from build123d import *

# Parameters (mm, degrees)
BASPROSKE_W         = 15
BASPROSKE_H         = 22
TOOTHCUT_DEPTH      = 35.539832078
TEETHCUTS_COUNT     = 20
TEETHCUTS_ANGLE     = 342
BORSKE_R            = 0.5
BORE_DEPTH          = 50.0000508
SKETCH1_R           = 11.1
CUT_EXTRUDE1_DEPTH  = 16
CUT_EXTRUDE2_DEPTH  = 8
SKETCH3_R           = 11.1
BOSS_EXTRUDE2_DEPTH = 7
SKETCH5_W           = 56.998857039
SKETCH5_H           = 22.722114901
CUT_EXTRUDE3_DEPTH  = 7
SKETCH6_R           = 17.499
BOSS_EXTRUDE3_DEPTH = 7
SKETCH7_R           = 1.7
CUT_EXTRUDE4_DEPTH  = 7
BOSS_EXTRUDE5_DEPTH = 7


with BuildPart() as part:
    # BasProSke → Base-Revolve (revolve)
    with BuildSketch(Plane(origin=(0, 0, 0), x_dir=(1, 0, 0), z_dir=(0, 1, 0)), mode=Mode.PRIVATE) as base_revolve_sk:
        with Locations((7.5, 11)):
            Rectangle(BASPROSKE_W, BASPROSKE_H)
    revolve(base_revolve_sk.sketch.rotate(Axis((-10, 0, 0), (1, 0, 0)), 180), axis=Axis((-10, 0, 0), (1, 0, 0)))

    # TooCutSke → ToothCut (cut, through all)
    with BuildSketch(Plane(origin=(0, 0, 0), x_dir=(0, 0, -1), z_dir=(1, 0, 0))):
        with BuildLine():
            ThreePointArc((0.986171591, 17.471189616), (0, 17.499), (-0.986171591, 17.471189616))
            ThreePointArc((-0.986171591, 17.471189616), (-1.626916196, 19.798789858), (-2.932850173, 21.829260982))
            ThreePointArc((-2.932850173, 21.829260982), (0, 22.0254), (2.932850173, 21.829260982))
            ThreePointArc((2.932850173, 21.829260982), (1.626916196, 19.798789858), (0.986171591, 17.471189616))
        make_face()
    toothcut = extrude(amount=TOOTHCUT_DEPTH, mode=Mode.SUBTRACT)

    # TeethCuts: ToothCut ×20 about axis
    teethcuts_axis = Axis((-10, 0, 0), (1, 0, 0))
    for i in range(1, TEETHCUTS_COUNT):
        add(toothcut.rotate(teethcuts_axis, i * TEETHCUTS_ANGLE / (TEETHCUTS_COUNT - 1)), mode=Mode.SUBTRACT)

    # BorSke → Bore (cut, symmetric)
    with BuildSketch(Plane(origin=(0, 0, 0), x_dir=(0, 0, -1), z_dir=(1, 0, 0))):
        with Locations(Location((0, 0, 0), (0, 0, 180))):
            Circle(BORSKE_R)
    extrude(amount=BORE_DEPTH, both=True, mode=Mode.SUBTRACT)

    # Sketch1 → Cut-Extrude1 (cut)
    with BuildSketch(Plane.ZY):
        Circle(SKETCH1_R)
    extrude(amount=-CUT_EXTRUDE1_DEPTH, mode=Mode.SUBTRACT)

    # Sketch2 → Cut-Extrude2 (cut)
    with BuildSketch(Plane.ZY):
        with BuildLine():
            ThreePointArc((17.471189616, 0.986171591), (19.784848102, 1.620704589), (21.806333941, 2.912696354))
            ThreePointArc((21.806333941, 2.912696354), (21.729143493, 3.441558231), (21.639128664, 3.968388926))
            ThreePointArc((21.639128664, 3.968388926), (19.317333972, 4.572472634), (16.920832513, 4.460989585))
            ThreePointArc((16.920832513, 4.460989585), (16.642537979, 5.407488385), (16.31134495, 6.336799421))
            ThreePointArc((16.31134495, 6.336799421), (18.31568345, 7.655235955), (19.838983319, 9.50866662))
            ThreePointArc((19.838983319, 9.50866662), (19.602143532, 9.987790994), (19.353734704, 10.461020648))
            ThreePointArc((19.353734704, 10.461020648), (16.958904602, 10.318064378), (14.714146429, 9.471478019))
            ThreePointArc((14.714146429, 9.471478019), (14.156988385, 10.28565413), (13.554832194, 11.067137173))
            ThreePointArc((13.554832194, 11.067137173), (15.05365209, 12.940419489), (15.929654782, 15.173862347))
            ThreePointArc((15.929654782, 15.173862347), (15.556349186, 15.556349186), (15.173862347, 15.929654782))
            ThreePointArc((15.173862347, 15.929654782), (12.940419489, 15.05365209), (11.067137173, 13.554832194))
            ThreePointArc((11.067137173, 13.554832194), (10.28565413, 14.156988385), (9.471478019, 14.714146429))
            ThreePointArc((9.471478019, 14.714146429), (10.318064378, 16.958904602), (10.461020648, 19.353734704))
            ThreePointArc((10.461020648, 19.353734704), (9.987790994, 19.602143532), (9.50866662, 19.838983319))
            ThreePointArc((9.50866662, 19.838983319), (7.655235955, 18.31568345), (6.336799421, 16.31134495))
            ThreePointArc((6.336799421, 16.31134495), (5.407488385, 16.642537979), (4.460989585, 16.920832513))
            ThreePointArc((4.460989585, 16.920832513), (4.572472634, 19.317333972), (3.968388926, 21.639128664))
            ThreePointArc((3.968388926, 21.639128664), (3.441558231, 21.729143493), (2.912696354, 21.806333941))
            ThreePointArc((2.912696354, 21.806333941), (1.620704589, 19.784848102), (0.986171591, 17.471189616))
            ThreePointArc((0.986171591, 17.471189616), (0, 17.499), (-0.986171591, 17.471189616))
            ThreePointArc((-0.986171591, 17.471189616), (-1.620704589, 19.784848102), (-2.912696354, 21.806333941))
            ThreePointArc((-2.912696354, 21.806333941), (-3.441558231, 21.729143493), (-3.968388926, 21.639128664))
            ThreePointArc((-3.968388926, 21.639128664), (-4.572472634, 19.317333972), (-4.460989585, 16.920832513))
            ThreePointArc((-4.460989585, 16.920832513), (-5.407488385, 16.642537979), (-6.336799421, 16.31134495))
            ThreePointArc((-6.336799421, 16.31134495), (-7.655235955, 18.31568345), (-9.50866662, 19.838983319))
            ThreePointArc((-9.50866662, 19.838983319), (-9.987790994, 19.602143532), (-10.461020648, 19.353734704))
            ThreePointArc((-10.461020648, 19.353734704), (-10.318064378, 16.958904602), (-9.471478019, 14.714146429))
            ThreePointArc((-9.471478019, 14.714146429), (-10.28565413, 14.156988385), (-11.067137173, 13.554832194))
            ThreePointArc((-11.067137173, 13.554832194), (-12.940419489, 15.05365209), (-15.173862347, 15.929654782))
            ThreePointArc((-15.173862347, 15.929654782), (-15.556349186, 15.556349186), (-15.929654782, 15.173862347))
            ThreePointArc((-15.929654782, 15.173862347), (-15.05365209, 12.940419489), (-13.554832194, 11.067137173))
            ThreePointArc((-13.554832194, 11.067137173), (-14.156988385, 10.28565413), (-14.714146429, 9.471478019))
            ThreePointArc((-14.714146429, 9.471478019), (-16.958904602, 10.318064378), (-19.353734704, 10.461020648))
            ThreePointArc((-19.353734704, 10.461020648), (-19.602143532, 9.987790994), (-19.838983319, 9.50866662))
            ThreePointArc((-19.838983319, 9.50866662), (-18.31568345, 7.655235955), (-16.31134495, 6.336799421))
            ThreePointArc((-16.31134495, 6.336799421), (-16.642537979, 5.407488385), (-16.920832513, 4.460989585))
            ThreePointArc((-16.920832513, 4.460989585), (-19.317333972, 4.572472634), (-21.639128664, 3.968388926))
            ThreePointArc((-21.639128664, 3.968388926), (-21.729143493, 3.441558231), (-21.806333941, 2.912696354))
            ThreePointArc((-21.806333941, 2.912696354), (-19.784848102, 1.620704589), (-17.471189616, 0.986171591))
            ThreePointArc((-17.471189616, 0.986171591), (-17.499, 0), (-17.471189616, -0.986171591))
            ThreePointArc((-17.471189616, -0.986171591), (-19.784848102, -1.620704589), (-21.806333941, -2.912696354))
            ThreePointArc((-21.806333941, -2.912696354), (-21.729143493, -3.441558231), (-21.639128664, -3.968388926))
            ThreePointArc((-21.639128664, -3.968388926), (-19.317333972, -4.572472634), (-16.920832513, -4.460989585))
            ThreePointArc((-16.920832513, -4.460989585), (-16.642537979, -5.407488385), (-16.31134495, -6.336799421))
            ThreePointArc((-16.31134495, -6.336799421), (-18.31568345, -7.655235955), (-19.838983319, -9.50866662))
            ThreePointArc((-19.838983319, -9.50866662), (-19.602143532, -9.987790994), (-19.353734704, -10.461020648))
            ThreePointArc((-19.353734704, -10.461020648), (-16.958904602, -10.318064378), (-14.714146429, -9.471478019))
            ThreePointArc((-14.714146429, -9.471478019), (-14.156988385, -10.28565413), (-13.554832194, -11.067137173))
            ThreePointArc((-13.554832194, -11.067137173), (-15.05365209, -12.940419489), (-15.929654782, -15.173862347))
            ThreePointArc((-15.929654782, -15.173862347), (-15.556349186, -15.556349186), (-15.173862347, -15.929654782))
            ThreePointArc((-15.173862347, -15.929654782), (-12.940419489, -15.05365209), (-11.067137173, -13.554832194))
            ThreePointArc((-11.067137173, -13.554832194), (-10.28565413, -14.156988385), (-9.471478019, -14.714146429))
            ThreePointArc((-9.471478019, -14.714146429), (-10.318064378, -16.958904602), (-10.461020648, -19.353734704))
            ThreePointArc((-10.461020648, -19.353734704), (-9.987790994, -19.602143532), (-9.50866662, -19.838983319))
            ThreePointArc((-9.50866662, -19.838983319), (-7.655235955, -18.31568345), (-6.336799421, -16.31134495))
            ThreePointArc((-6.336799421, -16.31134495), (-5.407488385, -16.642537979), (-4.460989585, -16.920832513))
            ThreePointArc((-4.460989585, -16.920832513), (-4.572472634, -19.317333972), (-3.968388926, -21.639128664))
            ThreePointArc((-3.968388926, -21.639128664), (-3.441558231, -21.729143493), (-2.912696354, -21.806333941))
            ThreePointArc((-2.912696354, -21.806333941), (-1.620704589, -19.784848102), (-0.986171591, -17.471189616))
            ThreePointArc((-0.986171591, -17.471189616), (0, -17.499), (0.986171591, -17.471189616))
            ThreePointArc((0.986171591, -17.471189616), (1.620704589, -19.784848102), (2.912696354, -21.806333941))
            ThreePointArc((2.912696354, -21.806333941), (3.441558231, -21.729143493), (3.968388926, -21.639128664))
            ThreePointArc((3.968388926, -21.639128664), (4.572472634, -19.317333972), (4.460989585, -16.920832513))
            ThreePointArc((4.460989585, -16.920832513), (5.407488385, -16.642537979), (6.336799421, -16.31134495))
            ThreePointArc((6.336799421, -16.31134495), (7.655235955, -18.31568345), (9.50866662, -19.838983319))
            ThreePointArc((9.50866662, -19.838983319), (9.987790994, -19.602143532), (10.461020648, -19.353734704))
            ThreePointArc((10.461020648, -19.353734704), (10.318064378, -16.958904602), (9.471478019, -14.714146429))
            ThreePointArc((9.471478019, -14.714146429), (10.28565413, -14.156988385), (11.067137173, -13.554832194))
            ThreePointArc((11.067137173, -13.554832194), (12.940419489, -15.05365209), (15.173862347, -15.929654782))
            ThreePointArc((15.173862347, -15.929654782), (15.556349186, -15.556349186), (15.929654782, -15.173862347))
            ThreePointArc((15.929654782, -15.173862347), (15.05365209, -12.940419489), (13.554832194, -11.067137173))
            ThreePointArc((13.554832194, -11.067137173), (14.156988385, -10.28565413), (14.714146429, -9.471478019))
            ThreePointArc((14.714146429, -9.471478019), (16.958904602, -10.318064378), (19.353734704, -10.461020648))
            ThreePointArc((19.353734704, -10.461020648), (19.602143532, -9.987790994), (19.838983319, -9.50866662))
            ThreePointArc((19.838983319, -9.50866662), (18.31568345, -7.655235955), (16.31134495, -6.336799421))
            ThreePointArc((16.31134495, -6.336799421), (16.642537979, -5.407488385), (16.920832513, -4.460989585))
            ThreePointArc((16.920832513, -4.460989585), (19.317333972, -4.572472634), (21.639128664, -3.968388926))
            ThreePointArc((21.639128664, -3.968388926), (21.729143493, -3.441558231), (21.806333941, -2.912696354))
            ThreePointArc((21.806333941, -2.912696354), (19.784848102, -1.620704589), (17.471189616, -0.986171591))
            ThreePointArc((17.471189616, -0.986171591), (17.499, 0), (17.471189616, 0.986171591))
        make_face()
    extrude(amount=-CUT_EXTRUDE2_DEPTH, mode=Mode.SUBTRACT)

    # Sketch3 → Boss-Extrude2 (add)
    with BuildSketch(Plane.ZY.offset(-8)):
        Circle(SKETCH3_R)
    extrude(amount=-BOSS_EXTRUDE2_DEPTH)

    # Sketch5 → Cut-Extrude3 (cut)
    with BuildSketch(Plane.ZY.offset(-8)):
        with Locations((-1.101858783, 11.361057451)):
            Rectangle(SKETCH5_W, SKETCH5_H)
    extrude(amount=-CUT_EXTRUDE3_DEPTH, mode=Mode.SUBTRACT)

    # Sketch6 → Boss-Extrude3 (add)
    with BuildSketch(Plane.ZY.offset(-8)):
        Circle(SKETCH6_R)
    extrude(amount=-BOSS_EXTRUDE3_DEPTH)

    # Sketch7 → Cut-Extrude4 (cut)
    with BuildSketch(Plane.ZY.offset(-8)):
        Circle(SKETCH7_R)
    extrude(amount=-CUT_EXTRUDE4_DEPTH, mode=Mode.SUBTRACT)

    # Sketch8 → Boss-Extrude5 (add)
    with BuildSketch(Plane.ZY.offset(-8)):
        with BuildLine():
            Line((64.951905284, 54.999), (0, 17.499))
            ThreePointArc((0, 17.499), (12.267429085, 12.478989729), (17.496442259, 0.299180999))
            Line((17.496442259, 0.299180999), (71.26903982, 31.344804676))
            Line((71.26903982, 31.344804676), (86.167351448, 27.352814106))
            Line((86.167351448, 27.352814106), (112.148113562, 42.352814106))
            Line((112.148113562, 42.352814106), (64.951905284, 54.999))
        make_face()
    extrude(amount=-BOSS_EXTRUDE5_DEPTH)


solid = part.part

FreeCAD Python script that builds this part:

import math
import FreeCAD as App
import Part
import Sketcher
Q = App.Units.Quantity

doc = App.newDocument("Part")
body = doc.addObject("PartDesign::Body", "Body")

# Sketch on XZ plane
sketch1 = body.newObject("Sketcher::SketchObject", "Sketch")
sketch1.AttachmentSupport = (doc.getObject("XZ_Plane"), [""])
sketch1.MapMode = "FlatFace"
sketch1.addGeometry([
    Part.LineSegment(App.Vector(0, -22, 0), App.Vector(0, 0, 0)),
    Part.LineSegment(App.Vector(0, 0, 0), App.Vector(15, 0, 0)),
    Part.LineSegment(App.Vector(15, 0, 0), App.Vector(15, -22, 0)),
    Part.LineSegment(App.Vector(15, -22, 0), App.Vector(0, -22, 0)),
], False)
sketch1.addConstraint([
    Sketcher.Constraint("Coincident", 0, 2, 1, 1),
    Sketcher.Constraint("Coincident", 1, 2, 2, 1),
    Sketcher.Constraint("Coincident", 2, 2, 3, 1),
    Sketcher.Constraint("Coincident", 3, 2, 0, 1),
    Sketcher.Constraint("Vertical", 0),
    Sketcher.Constraint("Horizontal", 1),
    Sketcher.Constraint("Vertical", 2),
    Sketcher.Constraint("Horizontal", 3),
    Sketcher.Constraint("Coincident", 0, 2, -1, 1),
    Sketcher.Constraint("DistanceX", 1, 1, 1, 2, Q("15 mm")),
    Sketcher.Constraint("DistanceY", 0, 1, 0, 2, Q("22 mm")),
])
revolution = body.newObject("PartDesign::Revolution", "Revolution")
revolution.Profile = sketch1
revolution.ReferenceAxis = (sketch1, ["H_Axis"])
revolution.Angle = 360

# Sketch on YZ plane
sketch2 = body.newObject("Sketcher::SketchObject", "Sketch001")
sketch2.AttachmentSupport = (doc.getObject("YZ_Plane"), [""])
sketch2.MapMode = "FlatFace"
sketch2.addGeometry([
    Part.ArcOfCircle(Part.Circle(App.Vector(0, 0, 0), App.Vector(0, 0, 1), 17.5), math.radians(-3.23), math.radians(3.23)),
    Part.ArcOfCircle(Part.Circle(App.Vector(16.5, -8.9, 0), App.Vector(0, 0, 1), 8), math.radians(49), math.radians(83)),
    Part.ArcOfCircle(Part.Circle(App.Vector(0, 0, 0), App.Vector(0, 0, 1), 22), math.radians(-7.65), math.radians(7.65)),
    Part.ArcOfCircle(Part.Circle(App.Vector(16.5, 8.9, 0), App.Vector(0, 0, 1), 8), math.radians(-83), math.radians(-49)),
], False)
sketch2.addConstraint([
    Sketcher.Constraint("Coincident", 0, 1, 1, 2),
    Sketcher.Constraint("Coincident", 1, 1, 2, 1),
    Sketcher.Constraint("Coincident", 2, 2, 3, 2),
    Sketcher.Constraint("Coincident", 3, 1, 0, 2),
    Sketcher.Constraint("Coincident", 0, 3, -1, 1),
    Sketcher.Constraint("Coincident", 2, 3, -1, 1),
    Sketcher.Constraint("Equal", 1, 3),
    Sketcher.Constraint("Symmetric", 1, 3, 3, 3, -1),
    Sketcher.Constraint("Radius", 1, Q("8 mm")),
    Sketcher.Constraint("Radius", 0, Q("17.499 mm")),
    Sketcher.Constraint("Radius", 2, Q("22.0254 mm")),
    Sketcher.Constraint("DistanceY", 1, 1, 2, 2, Q("5.8657 mm")),
    Sketcher.Constraint("DistanceX", -1, 1, 1, 3, Q("16.536031 mm")),
])
pocket1 = body.newObject("PartDesign::Pocket", "Pocket")
pocket1.Profile = sketch2
pocket1.Type = "ThroughAll"
pocket1.Reversed = True
doc.recompute()

polarpattern = body.newObject("PartDesign::PolarPattern", "PolarPattern")
polarpattern.Originals = [pocket1]
polarpattern.Axis = (doc.getObject("X_Axis"), [""])
polarpattern.Angle = 360
polarpattern.Occurrences = 20
body.Tip = polarpattern

# Sketch on YZ plane
sketch3 = body.newObject("Sketcher::SketchObject", "Sketch002")
sketch3.AttachmentSupport = (doc.getObject("YZ_Plane"), [""])
sketch3.MapMode = "FlatFace"
sketch3.addGeometry(Part.Circle(App.Vector(0, 0, 0), App.Vector(0, 0, 1), 0.5), False)
sketch3.addConstraint([
    Sketcher.Constraint("Coincident", 0, 3, -1, 1),
    Sketcher.Constraint("Diameter", 0, Q("1 mm")),
])
pocket2 = body.newObject("PartDesign::Pocket", "Pocket001")
pocket2.Profile = sketch3
pocket2.Length = 100.000102
pocket2.Midplane = True

# Sketch on YZ plane
sketch4 = body.newObject("Sketcher::SketchObject", "Sketch003")
sketch4.AttachmentSupport = (doc.getObject("YZ_Plane"), [""])
sketch4.MapMode = "FlatFace"
sketch4.addGeometry(Part.Circle(App.Vector(0, 0, 0), App.Vector(0, 0, 1), 11), False)
sketch4.addConstraint([
    Sketcher.Constraint("Coincident", 0, 3, -1, 1),
    Sketcher.Constraint("Diameter", 0, Q("22.2 mm")),
])
pocket3 = body.newObject("PartDesign::Pocket", "Pocket002")
pocket3.Profile = sketch4
pocket3.Length = 16
pocket3.Reversed = True

# Sketch on YZ plane
sketch5 = body.newObject("Sketcher::SketchObject", "Sketch004")
sketch5.AttachmentSupport = (doc.getObject("YZ_Plane"), [""])
sketch5.MapMode = "FlatFace"
sketch5.addGeometry([
    Part.ArcOfCircle(Part.Circle(App.Vector(8.9, 16.5, 0), App.Vector(0, 0, 1), 8), math.radians(139), math.radians(173)),  # 0
    Part.ArcOfCircle(Part.Circle(App.Vector(0, 0, 0), App.Vector(0, 0, 1), 22), math.radians(79.61), math.radians(82.39)),  # 1
    Part.ArcOfCircle(Part.Circle(App.Vector(-3.4, 18.5, 0), App.Vector(0, 0, 1), 8), math.radians(-11), math.radians(23)),  # 2
    Part.ArcOfCircle(Part.Circle(App.Vector(0, 0, 0), App.Vector(0, 0, 1), 17.5), math.radians(68.77), math.radians(75.23)),  # 3
    Part.ArcOfCircle(Part.Circle(App.Vector(13.6, 13, 0), App.Vector(0, 0, 1), 8), math.radians(121), math.radians(155)),  # 4
    Part.ArcOfCircle(Part.Circle(App.Vector(0, 0, 0), App.Vector(0, 0, 1), 22), math.radians(61.61), math.radians(64.39)),  # 5
    Part.ArcOfCircle(Part.Circle(App.Vector(2.5, 18.6, 0), App.Vector(0, 0, 1), 8), math.radians(-29), math.radians(5)),  # 6
    Part.ArcOfCircle(Part.Circle(App.Vector(0, 0, 0), App.Vector(0, 0, 1), 17.5), math.radians(50.77), math.radians(57.23)),  # 7
    Part.ArcOfCircle(Part.Circle(App.Vector(16.9, 8.1, 0), App.Vector(0, 0, 1), 8), math.radians(103), math.radians(137)),  # 8
    Part.ArcOfCircle(Part.Circle(App.Vector(0, 0, 0), App.Vector(0, 0, 1), 22), math.radians(43.61), math.radians(46.39)),  # 9
    Part.ArcOfCircle(Part.Circle(App.Vector(8.1, 16.9, 0), App.Vector(0, 0, 1), 8), math.radians(-47), math.radians(-13)),  # 10
    Part.ArcOfCircle(Part.Circle(App.Vector(0, 0, 0), App.Vector(0, 0, 1), 17.5), math.radians(32.77), math.radians(39.23)),  # 11
    Part.ArcOfCircle(Part.Circle(App.Vector(18.6, 2.5, 0), App.Vector(0, 0, 1), 8), math.radians(85), math.radians(119)),  # 12
    Part.ArcOfCircle(Part.Circle(App.Vector(0, 0, 0), App.Vector(0, 0, 1), 22), math.radians(25.61), math.radians(28.39)),  # 13
    Part.ArcOfCircle(Part.Circle(App.Vector(13, 13.6, 0), App.Vector(0, 0, 1), 8), math.radians(-65), math.radians(-31)),  # 14
    Part.ArcOfCircle(Part.Circle(App.Vector(0, 0, 0), App.Vector(0, 0, 1), 17.5), math.radians(14.77), math.radians(21.23)),  # 15
    Part.ArcOfCircle(Part.Circle(App.Vector(18.5, -3.4, 0), App.Vector(0, 0, 1), 8), math.radians(67), math.radians(101)),  # 16
    Part.ArcOfCircle(Part.Circle(App.Vector(0, 0, 0), App.Vector(0, 0, 1), 22), math.radians(7.61), math.radians(10.39)),  # 17
    Part.ArcOfCircle(Part.Circle(App.Vector(16.5, 8.9, 0), App.Vector(0, 0, 1), 8), math.radians(-83), math.radians(-49)),  # 18
    Part.ArcOfCircle(Part.Circle(App.Vector(0, 0, 0), App.Vector(0, 0, 1), 17.5), math.radians(-3.23), math.radians(3.23)),  # 19
    Part.ArcOfCircle(Part.Circle(App.Vector(16.5, -8.9, 0), App.Vector(0, 0, 1), 8), math.radians(49), math.radians(83)),  # 20
    Part.ArcOfCircle(Part.Circle(App.Vector(0, 0, 0), App.Vector(0, 0, 1), 22), math.radians(-10.39), math.radians(-7.61)),  # 21
    Part.ArcOfCircle(Part.Circle(App.Vector(18.5, 3.4, 0), App.Vector(0, 0, 1), 8), math.radians(-101), math.radians(-67)),  # 22
    Part.ArcOfCircle(Part.Circle(App.Vector(0, 0, 0), App.Vector(0, 0, 1), 17.5), math.radians(-21.23), math.radians(-14.77)),  # 23
    Part.ArcOfCircle(Part.Circle(App.Vector(13, -13.6, 0), App.Vector(0, 0, 1), 8), math.radians(31), math.radians(65)),  # 24
    Part.ArcOfCircle(Part.Circle(App.Vector(0, 0, 0), App.Vector(0, 0, 1), 22), math.radians(-28.39), math.radians(-25.61)),  # 25
    Part.ArcOfCircle(Part.Circle(App.Vector(18.6, -2.5, 0), App.Vector(0, 0, 1), 8), math.radians(-119), math.radians(-85)),  # 26
    Part.ArcOfCircle(Part.Circle(App.Vector(0, 0, 0), App.Vector(0, 0, 1), 17.5), math.radians(-39.23), math.radians(-32.77)),  # 27
    Part.ArcOfCircle(Part.Circle(App.Vector(8.1, -16.9, 0), App.Vector(0, 0, 1), 8), math.radians(13), math.radians(47)),  # 28
    Part.ArcOfCircle(Part.Circle(App.Vector(0, 0, 0), App.Vector(0, 0, 1), 22), math.radians(-46.39), math.radians(-43.61)),  # 29
    Part.ArcOfCircle(Part.Circle(App.Vector(16.9, -8.1, 0), App.Vector(0, 0, 1), 8), math.radians(-137), math.radians(-103)),  # 30
    Part.ArcOfCircle(Part.Circle(App.Vector(0, 0, 0), App.Vector(0, 0, 1), 17.5), math.radians(-57.23), math.radians(-50.77)),  # 31
    Part.ArcOfCircle(Part.Circle(App.Vector(2.5, -18.6, 0), App.Vector(0, 0, 1), 8), math.radians(-5), math.radians(29)),  # 32
    Part.ArcOfCircle(Part.Circle(App.Vector(0, 0, 0), App.Vector(0, 0, 1), 22), math.radians(-64.39), math.radians(-61.61)),  # 33
    Part.ArcOfCircle(Part.Circle(App.Vector(13.6, -13, 0), App.Vector(0, 0, 1), 8), math.radians(-155), math.radians(-121)),  # 34
    Part.ArcOfCircle(Part.Circle(App.Vector(0, 0, 0), App.Vector(0, 0, 1), 17.5), math.radians(-75.23), math.radians(-68.77)),  # 35
    Part.ArcOfCircle(Part.Circle(App.Vector(-3.4, -18.5, 0), App.Vector(0, 0, 1), 8), math.radians(-23), math.radians(11)),  # 36
    Part.ArcOfCircle(Part.Circle(App.Vector(0, 0, 0), App.Vector(0, 0, 1), 22), math.radians(-82.39), math.radians(-79.61)),  # 37
    Part.ArcOfCircle(Part.Circle(App.Vector(8.9, -16.5, 0), App.Vector(0, 0, 1), 8), math.radians(-173), math.radians(-139)),  # 38
    Part.ArcOfCircle(Part.Circle(App.Vector(0, 0, 0), App.Vector(0, 0, 1), 17.5), math.radians(-93.23), math.radians(-86.77)),  # 39
    Part.ArcOfCircle(Part.Circle(App.Vector(-8.9, -16.5, 0), App.Vector(0, 0, 1), 8), math.radians(-41), math.radians(-7)),  # 40
    Part.ArcOfCircle(Part.Circle(App.Vector(0, 0, 0), App.Vector(0, 0, 1), 22), math.radians(-100.39), math.radians(-97.61)),  # 41
    Part.ArcOfCircle(Part.Circle(App.Vector(3.4, -18.5, 0), App.Vector(0, 0, 1), 8), math.radians(169), math.radians(203)),  # 42
    Part.ArcOfCircle(Part.Circle(App.Vector(0, 0, 0), App.Vector(0, 0, 1), 17.5), math.radians(-111.23), math.radians(-104.77)),  # 43
    Part.ArcOfCircle(Part.Circle(App.Vector(-13.6, -13, 0), App.Vector(0, 0, 1), 8), math.radians(-59), math.radians(-25)),  # 44
    Part.ArcOfCircle(Part.Circle(App.Vector(0, 0, 0), App.Vector(0, 0, 1), 22), math.radians(-118.39), math.radians(-115.61)),  # 45
    Part.ArcOfCircle(Part.Circle(App.Vector(-2.5, -18.6, 0), App.Vector(0, 0, 1), 8), math.radians(151), math.radians(185)),  # 46
    Part.ArcOfCircle(Part.Circle(App.Vector(0, 0, 0), App.Vector(0, 0, 1), 17.5), math.radians(-129.23), math.radians(-122.77)),  # 47
    Part.ArcOfCircle(Part.Circle(App.Vector(-16.9, -8.1, 0), App.Vector(0, 0, 1), 8), math.radians(-77), math.radians(-43)),  # 48
    Part.ArcOfCircle(Part.Circle(App.Vector(0, 0, 0), App.Vector(0, 0, 1), 22), math.radians(-136.39), math.radians(-133.61)),  # 49
    Part.ArcOfCircle(Part.Circle(App.Vector(-8.1, -16.9, 0), App.Vector(0, 0, 1), 8), math.radians(133), math.radians(167)),  # 50
    Part.ArcOfCircle(Part.Circle(App.Vector(0, 0, 0), App.Vector(0, 0, 1), 17.5), math.radians(-147.23), math.radians(-140.77)),  # 51
    Part.ArcOfCircle(Part.Circle(App.Vector(-18.6, -2.5, 0), App.Vector(0, 0, 1), 8), math.radians(-95), math.radians(-61)),  # 52
    Part.ArcOfCircle(Part.Circle(App.Vector(0, 0, 0), App.Vector(0, 0, 1), 22), math.radians(-154.39), math.radians(-151.61)),  # 53
    Part.ArcOfCircle(Part.Circle(App.Vector(-13, -13.6, 0), App.Vector(0, 0, 1), 8), math.radians(115), math.radians(149)),  # 54
    Part.ArcOfCircle(Part.Circle(App.Vector(0, 0, 0), App.Vector(0, 0, 1), 17.5), math.radians(-165.23), math.radians(-158.77)),  # 55
    Part.ArcOfCircle(Part.Circle(App.Vector(-18.5, 3.4, 0), App.Vector(0, 0, 1), 8), math.radians(-113), math.radians(-79)),  # 56
    Part.ArcOfCircle(Part.Circle(App.Vector(0, 0, 0), App.Vector(0, 0, 1), 22), math.radians(-172.39), math.radians(-169.61)),  # 57
    Part.ArcOfCircle(Part.Circle(App.Vector(-16.5, -8.9, 0), App.Vector(0, 0, 1), 8), math.radians(97), math.radians(131)),  # 58
    Part.ArcOfCircle(Part.Circle(App.Vector(0, 0, 0), App.Vector(0, 0, 1), 17.5), math.radians(176.77), math.radians(183.23)),  # 59
    Part.ArcOfCircle(Part.Circle(App.Vector(-16.5, 8.9, 0), App.Vector(0, 0, 1), 8), math.radians(-131), math.radians(-97)),  # 60
    Part.ArcOfCircle(Part.Circle(App.Vector(0, 0, 0), App.Vector(0, 0, 1), 22), math.radians(169.61), math.radians(172.39)),  # 61
    Part.ArcOfCircle(Part.Circle(App.Vector(-18.5, -3.4, 0), App.Vector(0, 0, 1), 8), math.radians(79), math.radians(113)),  # 62
    Part.ArcOfCircle(Part.Circle(App.Vector(0, 0, 0), App.Vector(0, 0, 1), 17.5), math.radians(158.77), math.radians(165.23)),  # 63
    Part.ArcOfCircle(Part.Circle(App.Vector(-13, 13.6, 0), App.Vector(0, 0, 1), 8), math.radians(-149), math.radians(-115)),  # 64
    Part.ArcOfCircle(Part.Circle(App.Vector(0, 0, 0), App.Vector(0, 0, 1), 22), math.radians(151.61), math.radians(154.39)),  # 65
    Part.ArcOfCircle(Part.Circle(App.Vector(-18.6, 2.5, 0), App.Vector(0, 0, 1), 8), math.radians(61), math.radians(95)),  # 66
    Part.ArcOfCircle(Part.Circle(App.Vector(0, 0, 0), App.Vector(0, 0, 1), 17.5), math.radians(140.77), math.radians(147.23)),  # 67
    Part.ArcOfCircle(Part.Circle(App.Vector(-8.1, 16.9, 0), App.Vector(0, 0, 1), 8), math.radians(-167), math.radians(-133)),  # 68
    Part.ArcOfCircle(Part.Circle(App.Vector(0, 0, 0), App.Vector(0, 0, 1), 22), math.radians(133.61), math.radians(136.39)),  # 69
    Part.ArcOfCircle(Part.Circle(App.Vector(-16.9, 8.1, 0), App.Vector(0, 0, 1), 8), math.radians(43), math.radians(77)),  # 70
    Part.ArcOfCircle(Part.Circle(App.Vector(0, 0, 0), App.Vector(0, 0, 1), 17.5), math.radians(122.77), math.radians(129.23)),  # 71
    Part.ArcOfCircle(Part.Circle(App.Vector(-2.5, 18.6, 0), App.Vector(0, 0, 1), 8), math.radians(175), math.radians(209)),  # 72
    Part.ArcOfCircle(Part.Circle(App.Vector(0, 0, 0), App.Vector(0, 0, 1), 22), math.radians(115.61), math.radians(118.39)),  # 73
    Part.ArcOfCircle(Part.Circle(App.Vector(-13.6, 13, 0), App.Vector(0, 0, 1), 8), math.radians(25), math.radians(59)),  # 74
    Part.ArcOfCircle(Part.Circle(App.Vector(0, 0, 0), App.Vector(0, 0, 1), 17.5), math.radians(104.77), math.radians(111.23)),  # 75
    Part.ArcOfCircle(Part.Circle(App.Vector(3.4, 18.5, 0), App.Vector(0, 0, 1), 8), math.radians(157), math.radians(191)),  # 76
    Part.ArcOfCircle(Part.Circle(App.Vector(0, 0, 0), App.Vector(0, 0, 1), 22), math.radians(97.61), math.radians(100.39)),  # 77
    Part.ArcOfCircle(Part.Circle(App.Vector(-8.9, 16.5, 0), App.Vector(0, 0, 1), 8), math.radians(7), math.radians(41)),  # 78
    Part.ArcOfCircle(Part.Circle(App.Vector(0, 0, 0), App.Vector(0, 0, 1), 17.5), math.radians(86.77), math.radians(93.23)),  # 79
], False)
sketch5.addConstraint([
    Sketcher.Constraint("Coincident", 0, 1, 1, 2),
    Sketcher.Constraint("Coincident", 1, 1, 2, 2),
    Sketcher.Constraint("Coincident", 2, 1, 3, 2),
    Sketcher.Constraint("Coincident", 3, 1, 4, 2),
    Sketcher.Constraint("Coincident", 4, 1, 5, 2),
    Sketcher.Constraint("Coincident", 5, 1, 6, 2),
    Sketcher.Constraint("Coincident", 6, 1, 7, 2),
    Sketcher.Constraint("Coincident", 7, 1, 8, 2),
    Sketcher.Constraint("Coincident", 8, 1, 9, 2),
    Sketcher.Constraint("Coincident", 9, 1, 10, 2),
    Sketcher.Constraint("Coincident", 10, 1, 11, 2),
    Sketcher.Constraint("Coincident", 11, 1, 12, 2),
    Sketcher.Constraint("Coincident", 12, 1, 13, 2),
    Sketcher.Constraint("Coincident", 13, 1, 14, 2),
    Sketcher.Constraint("Coincident", 14, 1, 15, 2),
    Sketcher.Constraint("Coincident", 15, 1, 16, 2),
    Sketcher.Constraint("Coincident", 16, 1, 17, 2),
    Sketcher.Constraint("Coincident", 17, 1, 18, 2),
    Sketcher.Constraint("Coincident", 18, 1, 19, 2),
    Sketcher.Constraint("Coincident", 19, 1, 20, 2),
    Sketcher.Constraint("Coincident", 20, 1, 21, 2),
    Sketcher.Constraint("Coincident", 21, 1, 22, 2),
    Sketcher.Constraint("Coincident", 22, 1, 23, 2),
    Sketcher.Constraint("Coincident", 23, 1, 24, 2),
    Sketcher.Constraint("Coincident", 24, 1, 25, 2),
    Sketcher.Constraint("Coincident", 25, 1, 26, 2),
    Sketcher.Constraint("Coincident", 26, 1, 27, 2),
    Sketcher.Constraint("Coincident", 27, 1, 28, 2),
    Sketcher.Constraint("Coincident", 28, 1, 29, 2),
    Sketcher.Constraint("Coincident", 29, 1, 30, 2),
    Sketcher.Constraint("Coincident", 30, 1, 31, 2),
    Sketcher.Constraint("Coincident", 31, 1, 32, 2),
    Sketcher.Constraint("Coincident", 32, 1, 33, 2),
    Sketcher.Constraint("Coincident", 33, 1, 34, 2),
    Sketcher.Constraint("Coincident", 34, 1, 35, 2),
    Sketcher.Constraint("Coincident", 35, 1, 36, 2),
    Sketcher.Constraint("Coincident", 36, 1, 37, 2),
    Sketcher.Constraint("Coincident", 37, 1, 38, 2),
    Sketcher.Constraint("Coincident", 38, 1, 39, 2),
    Sketcher.Constraint("Coincident", 39, 1, 40, 2),
    Sketcher.Constraint("Coincident", 40, 1, 41, 2),
    Sketcher.Constraint("Coincident", 41, 1, 42, 2),
    Sketcher.Constraint("Coincident", 42, 1, 43, 2),
    Sketcher.Constraint("Coincident", 43, 1, 44, 2),
    Sketcher.Constraint("Coincident", 44, 1, 45, 2),
    Sketcher.Constraint("Coincident", 45, 1, 46, 2),
    Sketcher.Constraint("Coincident", 46, 1, 47, 2),
    Sketcher.Constraint("Coincident", 47, 1, 48, 2),
    Sketcher.Constraint("Coincident", 48, 1, 49, 2),
    Sketcher.Constraint("Coincident", 49, 1, 50, 2),
    Sketcher.Constraint("Coincident", 50, 1, 51, 2),
    Sketcher.Constraint("Coincident", 51, 1, 52, 2),
    Sketcher.Constraint("Coincident", 52, 1, 53, 2),
    Sketcher.Constraint("Coincident", 53, 1, 54, 2),
    Sketcher.Constraint("Coincident", 54, 1, 55, 2),
    Sketcher.Constraint("Coincident", 55, 1, 56, 2),
    Sketcher.Constraint("Coincident", 56, 1, 57, 2),
    Sketcher.Constraint("Coincident", 57, 1, 58, 2),
    Sketcher.Constraint("Coincident", 58, 1, 59, 2),
    Sketcher.Constraint("Coincident", 59, 1, 60, 2),
    Sketcher.Constraint("Coincident", 60, 1, 61, 2),
    Sketcher.Constraint("Coincident", 61, 1, 62, 2),
    Sketcher.Constraint("Coincident", 62, 1, 63, 2),
    Sketcher.Constraint("Coincident", 63, 1, 64, 2),
    Sketcher.Constraint("Coincident", 64, 1, 65, 2),
    Sketcher.Constraint("Coincident", 65, 1, 66, 2),
    Sketcher.Constraint("Coincident", 66, 1, 67, 2),
    Sketcher.Constraint("Coincident", 67, 1, 68, 2),
    Sketcher.Constraint("Coincident", 68, 1, 69, 2),
    Sketcher.Constraint("Coincident", 69, 1, 70, 2),
    Sketcher.Constraint("Coincident", 70, 1, 71, 2),
    Sketcher.Constraint("Coincident", 71, 1, 72, 2),
    Sketcher.Constraint("Coincident", 72, 1, 73, 2),
    Sketcher.Constraint("Coincident", 73, 1, 74, 2),
    Sketcher.Constraint("Coincident", 74, 1, 75, 2),
    Sketcher.Constraint("Coincident", 75, 1, 76, 2),
    Sketcher.Constraint("Coincident", 76, 1, 77, 2),
    Sketcher.Constraint("Coincident", 77, 1, 78, 2),
    Sketcher.Constraint("Coincident", 78, 1, 79, 2),
    Sketcher.Constraint("Coincident", 79, 1, 0, 2),
    Sketcher.Constraint("Coincident", 1, 3, -1, 1),
    Sketcher.Constraint("Coincident", 3, 3, -1, 1),
    Sketcher.Constraint("Coincident", 5, 3, -1, 1),
    Sketcher.Constraint("Coincident", 7, 3, -1, 1),
    Sketcher.Constraint("Coincident", 9, 3, -1, 1),
    Sketcher.Constraint("Coincident", 11, 3, -1, 1),
    Sketcher.Constraint("Coincident", 13, 3, -1, 1),
    Sketcher.Constraint("Coincident", 15, 3, -1, 1),
    Sketcher.Constraint("Coincident", 17, 3, -1, 1),
    Sketcher.Constraint("Coincident", 19, 3, -1, 1),
    Sketcher.Constraint("Coincident", 21, 3, -1, 1),
    Sketcher.Constraint("Coincident", 23, 3, -1, 1),
    Sketcher.Constraint("Coincident", 25, 3, -1, 1),
    Sketcher.Constraint("Coincident", 27, 3, -1, 1),
    Sketcher.Constraint("Coincident", 29, 3, -1, 1),
    Sketcher.Constraint("Coincident", 31, 3, -1, 1),
    Sketcher.Constraint("Coincident", 33, 3, -1, 1),
    Sketcher.Constraint("Coincident", 35, 3, -1, 1),
    Sketcher.Constraint("Coincident", 37, 3, -1, 1),
    Sketcher.Constraint("Coincident", 39, 3, -1, 1),
    Sketcher.Constraint("Coincident", 41, 3, -1, 1),
    Sketcher.Constraint("Coincident", 43, 3, -1, 1),
    Sketcher.Constraint("Coincident", 45, 3, -1, 1),
    Sketcher.Constraint("Coincident", 47, 3, -1, 1),
    Sketcher.Constraint("Coincident", 49, 3, -1, 1),
    Sketcher.Constraint("Coincident", 51, 3, -1, 1),
    Sketcher.Constraint("Coincident", 53, 3, -1, 1),
    Sketcher.Constraint("Coincident", 55, 3, -1, 1),
    Sketcher.Constraint("Coincident", 57, 3, -1, 1),
    Sketcher.Constraint("Coincident", 59, 3, -1, 1),
    Sketcher.Constraint("Coincident", 61, 3, -1, 1),
    Sketcher.Constraint("Coincident", 63, 3, -1, 1),
    Sketcher.Constraint("Coincident", 65, 3, -1, 1),
    Sketcher.Constraint("Coincident", 67, 3, -1, 1),
    Sketcher.Constraint("Coincident", 69, 3, -1, 1),
    Sketcher.Constraint("Coincident", 71, 3, -1, 1),
    Sketcher.Constraint("Coincident", 73, 3, -1, 1),
    Sketcher.Constraint("Coincident", 75, 3, -1, 1),
    Sketcher.Constraint("Coincident", 77, 3, -1, 1),
    Sketcher.Constraint("Coincident", 79, 3, -1, 1),
    Sketcher.Constraint("Equal", 0, 2),
    Sketcher.Constraint("Equal", 2, 4),
    Sketcher.Constraint("Equal", 1, 5),
    Sketcher.Constraint("Equal", 4, 6),
    Sketcher.Constraint("Equal", 3, 7),
    Sketcher.Constraint("Equal", 6, 8),
    Sketcher.Constraint("Equal", 5, 9),
    Sketcher.Constraint("Equal", 8, 10),
    Sketcher.Constraint("Equal", 7, 11),
    Sketcher.Constraint("Equal", 10, 12),
    Sketcher.Constraint("Equal", 9, 13),
    Sketcher.Constraint("Equal", 12, 14),
    Sketcher.Constraint("Equal", 11, 15),
    Sketcher.Constraint("Equal", 14, 16),
    Sketcher.Constraint("Equal", 13, 17),
    Sketcher.Constraint("Equal", 16, 18),
    Sketcher.Constraint("Equal", 15, 19),
    Sketcher.Constraint("Equal", 18, 20),
    Sketcher.Constraint("Equal", 17, 21),
    Sketcher.Constraint("Equal", 20, 22),
    Sketcher.Constraint("Equal", 19, 23),
    Sketcher.Constraint("Equal", 22, 24),
    Sketcher.Constraint("Equal", 21, 25),
    Sketcher.Constraint("Equal", 24, 26),
    Sketcher.Constraint("Equal", 23, 27),
    Sketcher.Constraint("Equal", 26, 28),
    Sketcher.Constraint("Equal", 25, 29),
    Sketcher.Constraint("Equal", 28, 30),
    Sketcher.Constraint("Equal", 27, 31),
    Sketcher.Constraint("Equal", 30, 32),
    Sketcher.Constraint("Equal", 29, 33),
    Sketcher.Constraint("Equal", 32, 34),
    Sketcher.Constraint("Equal", 31, 35),
    Sketcher.Constraint("Equal", 34, 36),
    Sketcher.Constraint("Equal", 33, 37),
    Sketcher.Constraint("Equal", 36, 38),
    Sketcher.Constraint("Equal", 35, 39),
    Sketcher.Constraint("Equal", 38, 40),
    Sketcher.Constraint("Equal", 37, 41),
    Sketcher.Constraint("Equal", 40, 42),
    Sketcher.Constraint("Equal", 39, 43),
    Sketcher.Constraint("Equal", 42, 44),
    Sketcher.Constraint("Equal", 41, 45),
    Sketcher.Constraint("Equal", 44, 46),
    Sketcher.Constraint("Equal", 43, 47),
    Sketcher.Constraint("Equal", 46, 48),
    Sketcher.Constraint("Equal", 45, 49),
    Sketcher.Constraint("Equal", 48, 50),
    Sketcher.Constraint("Equal", 47, 51),
    Sketcher.Constraint("Equal", 50, 52),
    Sketcher.Constraint("Equal", 49, 53),
    Sketcher.Constraint("Equal", 52, 54),
    Sketcher.Constraint("Equal", 51, 55),
    Sketcher.Constraint("Equal", 54, 56),
    Sketcher.Constraint("Equal", 53, 57),
    Sketcher.Constraint("Equal", 56, 58),
    Sketcher.Constraint("Equal", 55, 59),
    Sketcher.Constraint("Equal", 58, 60),
    Sketcher.Constraint("Equal", 57, 61),
    Sketcher.Constraint("Equal", 60, 62),
    Sketcher.Constraint("Equal", 59, 63),
    Sketcher.Constraint("Equal", 62, 64),
    Sketcher.Constraint("Equal", 61, 65),
    Sketcher.Constraint("Equal", 64, 66),
    Sketcher.Constraint("Equal", 63, 67),
    Sketcher.Constraint("Equal", 66, 68),
    Sketcher.Constraint("Equal", 65, 69),
    Sketcher.Constraint("Equal", 68, 70),
    Sketcher.Constraint("Equal", 67, 71),
    Sketcher.Constraint("Equal", 70, 72),
    Sketcher.Constraint("Equal", 69, 73),
    Sketcher.Constraint("Equal", 72, 74),
    Sketcher.Constraint("Equal", 71, 75),
    Sketcher.Constraint("Equal", 74, 76),
    Sketcher.Constraint("Equal", 73, 77),
    Sketcher.Constraint("Equal", 76, 78),
    Sketcher.Constraint("Equal", 75, 79),
    Sketcher.Constraint("Symmetric", 0, 3, 40, 3, -1, 1),
    Sketcher.Constraint("Symmetric", 2, 3, 42, 3, -1, 1),
    Sketcher.Constraint("Symmetric", 4, 3, 44, 3, -1, 1),
    Sketcher.Constraint("Symmetric", 6, 3, 46, 3, -1, 1),
    Sketcher.Constraint("Symmetric", 8, 3, 48, 3, -1, 1),
    Sketcher.Constraint("Symmetric", 10, 3, 50, 3, -1, 1),
    Sketcher.Constraint("Symmetric", 12, 3, 52, 3, -1, 1),
    Sketcher.Constraint("Symmetric", 14, 3, 54, 3, -1, 1),
    Sketcher.Constraint("Symmetric", 16, 3, 56, 3, -1, 1),
    Sketcher.Constraint("Symmetric", 18, 3, 58, 3, -1, 1),
    Sketcher.Constraint("Symmetric", 20, 3, 60, 3, -1, 1),
    Sketcher.Constraint("Symmetric", 22, 3, 62, 3, -1, 1),
    Sketcher.Constraint("Symmetric", 24, 3, 64, 3, -1, 1),
    Sketcher.Constraint("Symmetric", 26, 3, 66, 3, -1, 1),
    Sketcher.Constraint("Symmetric", 28, 3, 68, 3, -1, 1),
    Sketcher.Constraint("Symmetric", 30, 3, 70, 3, -1, 1),
    Sketcher.Constraint("Symmetric", 32, 3, 72, 3, -1, 1),
    Sketcher.Constraint("Symmetric", 34, 3, 74, 3, -1, 1),
    Sketcher.Constraint("Symmetric", 36, 3, 76, 3, -1, 1),
    Sketcher.Constraint("Symmetric", 38, 3, 78, 3, -1, 1),
    Sketcher.Constraint("Symmetric", 38, 3, 40, 3, -2),
    Sketcher.Constraint("Symmetric", 36, 3, 42, 3, -2),
    Sketcher.Constraint("Symmetric", 34, 3, 44, 3, -2),
    Sketcher.Constraint("Symmetric", 32, 3, 46, 3, -2),
    Sketcher.Constraint("Symmetric", 30, 3, 48, 3, -2),
    Sketcher.Constraint("Symmetric", 28, 3, 50, 3, -2),
    Sketcher.Constraint("Symmetric", 26, 3, 52, 3, -2),
    Sketcher.Constraint("Symmetric", 24, 3, 54, 3, -2),
    Sketcher.Constraint("Symmetric", 22, 3, 56, 3, -2),
    Sketcher.Constraint("Symmetric", 20, 3, 58, 3, -2),
    Sketcher.Constraint("Radius", 0, Q("8 mm")),
    Sketcher.Constraint("Radius", 1, Q("22 mm")),
    Sketcher.Constraint("Radius", 3, Q("17.499 mm")),
    Sketcher.Constraint("DistanceX", -1, 1, 3, 1, Q("6.336799 mm")),
    Sketcher.Constraint("DistanceY", -1, 1, 14, 1, Q("6.336799 mm")),
    Sketcher.Constraint("DistanceY", -1, 1, 0, 3, Q("16.536031 mm")),
    Sketcher.Constraint("DistanceX", 2, 3, -1, 1, Q("3.384281 mm")),
    Sketcher.Constraint("DistanceY", -1, 1, 2, 3, Q("18.486631 mm")),
    Sketcher.Constraint("DistanceX", -1, 1, 4, 3, Q("13.60411 mm")),
    Sketcher.Constraint("DistanceX", -1, 1, 6, 3, Q("2.49404 mm")),
    Sketcher.Constraint("DistanceY", -1, 1, 6, 3, Q("18.627631 mm")),
    Sketcher.Constraint("DistanceX", -1, 1, 8, 3, Q("16.945229 mm")),
    Sketcher.Constraint("DistanceY", -1, 1, 8, 3, Q("8.128228 mm")),
    Sketcher.Constraint("DistanceX", -1, 1, 10, 3, Q("8.128228 mm")),
    Sketcher.Constraint("DistanceY", -1, 1, 10, 3, Q("16.945229 mm")),
    Sketcher.Constraint("DistanceX", -1, 1, 12, 3, Q("18.627631 mm")),
    Sketcher.Constraint("DistanceY", -1, 1, 12, 3, Q("2.49404 mm")),
    Sketcher.Constraint("DistanceX", -1, 1, 14, 3, Q("12.966768 mm")),
    Sketcher.Constraint("DistanceX", -1, 1, 16, 3, Q("18.486631 mm")),
    Sketcher.Constraint("DistanceY", 16, 3, -1, 1, Q("3.384281 mm")),
    Sketcher.Constraint("DistanceX", -1, 1, 18, 3, Q("16.536031 mm")),
    Sketcher.Constraint("DistanceX", -1, 1, 18, 1, Q("17.47119 mm")),
    Sketcher.Constraint("DistanceX", -1, 1, 38, 1, Q("0.986172 mm")),
])
pocket4 = body.newObject("PartDesign::Pocket", "Pocket003")
pocket4.Profile = sketch5
pocket4.Length = 8
pocket4.Reversed = True

# Sketch on YZ plane
sketch6 = body.newObject("Sketcher::SketchObject", "Sketch005")
sketch6.AttachmentSupport = (doc.getObject("YZ_Plane"), [""])
sketch6.MapMode = "FlatFace"
sketch6.AttachmentOffset = App.Placement(App.Vector(0, 0, 8), App.Rotation())
sketch6.addGeometry(Part.Circle(App.Vector(0, 0, 0), App.Vector(0, 0, 1), 11), False)
sketch6.addConstraint([
    Sketcher.Constraint("Coincident", 0, 3, -1, 1),
    Sketcher.Constraint("Diameter", 0, Q("22.2 mm")),
])
pad1 = body.newObject("PartDesign::Pad", "Pad")
pad1.Profile = sketch6
pad1.Length = 7

# Sketch on YZ plane
sketch7 = body.newObject("Sketcher::SketchObject", "Sketch006")
sketch7.AttachmentSupport = (doc.getObject("YZ_Plane"), [""])
sketch7.MapMode = "FlatFace"
sketch7.AttachmentOffset = App.Placement(App.Vector(0, 0, 8), App.Rotation())
sketch7.addGeometry([
    Part.LineSegment(App.Vector(23, -30, 0), App.Vector(0, -30, 0)),
    Part.LineSegment(App.Vector(0, -30, 0), App.Vector(0, 27, 0)),
    Part.LineSegment(App.Vector(0, 27, 0), App.Vector(23, 27, 0)),
    Part.LineSegment(App.Vector(23, 27, 0), App.Vector(23, -30, 0)),
], False)
sketch7.addConstraint([
    Sketcher.Constraint("Coincident", 0, 2, 1, 1),
    Sketcher.Constraint("Coincident", 1, 2, 2, 1),
    Sketcher.Constraint("Coincident", 2, 2, 3, 1),
    Sketcher.Constraint("Coincident", 3, 2, 0, 1),
    Sketcher.Constraint("Horizontal", 0),
    Sketcher.Constraint("Vertical", 1),
    Sketcher.Constraint("Horizontal", 2),
    Sketcher.Constraint("Vertical", 3),
    Sketcher.Constraint("PointOnObject", 0, 2, -2),
    Sketcher.Constraint("DistanceX", 0, 2, 0, 1, Q("22.722115 mm")),
    Sketcher.Constraint("DistanceY", 1, 1, 1, 2, Q("56.998857 mm")),
    Sketcher.Constraint("DistanceY", -1, 1, 1, 2, Q("27.39757 mm")),
])
pocket5 = body.newObject("PartDesign::Pocket", "Pocket004")
pocket5.Profile = sketch7
pocket5.Length = 7
pocket5.Reversed = True

# Sketch on YZ plane
sketch8 = body.newObject("Sketcher::SketchObject", "Sketch007")
sketch8.AttachmentSupport = (doc.getObject("YZ_Plane"), [""])
sketch8.MapMode = "FlatFace"
sketch8.AttachmentOffset = App.Placement(App.Vector(0, 0, 8), App.Rotation())
sketch8.addGeometry(Part.Circle(App.Vector(0, 0, 0), App.Vector(0, 0, 1), 17), False)
sketch8.addConstraint([
    Sketcher.Constraint("Coincident", 0, 3, -1, 1),
    Sketcher.Constraint("Diameter", 0, Q("34.998 mm")),
])
pad2 = body.newObject("PartDesign::Pad", "Pad001")
pad2.Profile = sketch8
pad2.Length = 7

# Sketch on YZ plane
sketch9 = body.newObject("Sketcher::SketchObject", "Sketch008")
sketch9.AttachmentSupport = (doc.getObject("YZ_Plane"), [""])
sketch9.MapMode = "FlatFace"
sketch9.AttachmentOffset = App.Placement(App.Vector(0, 0, 8), App.Rotation())
sketch9.addGeometry(Part.Circle(App.Vector(0, 0, 0), App.Vector(0, 0, 1), 1.7), False)
sketch9.addConstraint([
    Sketcher.Constraint("Coincident", 0, 3, -1, 1),
    Sketcher.Constraint("Diameter", 0, Q("3.4 mm")),
])
pocket6 = body.newObject("PartDesign::Pocket", "Pocket005")
pocket6.Profile = sketch9
pocket6.Length = 7
pocket6.Reversed = True

# Sketch on YZ plane
sketch10 = body.newObject("Sketcher::SketchObject", "Sketch009")
sketch10.AttachmentSupport = (doc.getObject("YZ_Plane"), [""])
sketch10.MapMode = "FlatFace"
sketch10.AttachmentOffset = App.Placement(App.Vector(0, 0, 8), App.Rotation())
sketch10.addGeometry([
    Part.LineSegment(App.Vector(55, 65, 0), App.Vector(17, 0, 0)),  # 0
    Part.ArcOfCircle(Part.Circle(App.Vector(0, 0, 0), App.Vector(0, 0, 1), 17), math.radians(0), math.radians(89)),  # 1
    Part.LineSegment(App.Vector(0, 17, 0), App.Vector(31, 71, 0)),  # 2
    Part.LineSegment(App.Vector(31, 71, 0), App.Vector(27, 86, 0)),  # 3
    Part.LineSegment(App.Vector(27, 86, 0), App.Vector(42, 112, 0)),  # 4
    Part.LineSegment(App.Vector(42, 112, 0), App.Vector(55, 65, 0)),  # 5
], False)
sketch10.addConstraint([
    Sketcher.Constraint("Coincident", 0, 2, 1, 1),
    Sketcher.Constraint("Coincident", 1, 2, 2, 1),
    Sketcher.Constraint("Coincident", 2, 2, 3, 1),
    Sketcher.Constraint("Coincident", 3, 2, 4, 1),
    Sketcher.Constraint("Coincident", 4, 2, 5, 1),
    Sketcher.Constraint("Coincident", 5, 2, 0, 1),
    Sketcher.Constraint("Coincident", 1, 3, -1, 1),
    Sketcher.Constraint("PointOnObject", 0, 2, -1),
    Sketcher.Constraint("Parallel", 0, 2),
    Sketcher.Constraint("Parallel", 2, 4),
    Sketcher.Constraint("Parallel", 3, 5),
    Sketcher.Constraint("Angle", 0, Q("-120 deg")),
    Sketcher.Constraint("Angle", 3, Q("105 deg")),
    Sketcher.Constraint("Distance", 0, Q("75 mm")),
    Sketcher.Constraint("Distance", 4, Q("30 mm")),
    Sketcher.Constraint("Radius", 1, Q("17.499 mm")),
    Sketcher.Constraint("Distance", 5, Q("48.86111 mm")),
    Sketcher.Constraint("DistanceX", -1, 1, 1, 2, Q("0.299181 mm")),
])
pad3 = body.newObject("PartDesign::Pad", "Pad002")
pad3.Profile = sketch10
pad3.Length = 7

doc.recompute()
